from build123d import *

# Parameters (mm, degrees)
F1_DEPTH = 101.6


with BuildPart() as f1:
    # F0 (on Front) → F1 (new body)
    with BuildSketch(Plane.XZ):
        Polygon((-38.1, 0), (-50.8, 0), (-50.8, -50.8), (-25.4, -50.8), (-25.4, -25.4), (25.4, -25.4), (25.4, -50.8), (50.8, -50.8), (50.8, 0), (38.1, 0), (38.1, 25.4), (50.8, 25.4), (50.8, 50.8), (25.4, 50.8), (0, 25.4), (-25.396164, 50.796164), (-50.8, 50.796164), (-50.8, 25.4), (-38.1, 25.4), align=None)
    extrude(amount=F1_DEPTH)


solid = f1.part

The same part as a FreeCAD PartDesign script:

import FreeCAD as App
import Part
import Sketcher
Q = App.Units.Quantity

doc = App.newDocument("Part")
body = doc.addObject("PartDesign::Body", "Body")

sketch1 = body.newObject("Sketcher::SketchObject", "Sketch")
sketch1.AttachmentSupport = (doc.getObject("XZ_Plane"), [""])
sketch1.MapMode = "FlatFace"
sketch1.addGeometry([
    Part.LineSegment(App.Vector(-38, 0, 0), App.Vector(-51, 0, 0)),
    Part.LineSegment(App.Vector(-51, 0, 0), App.Vector(-51, -51, 0)),
    Part.LineSegment(App.Vector(-51, -51, 0), App.Vector(-25, -51, 0)),
    Part.LineSegment(App.Vector(-25, -51, 0), App.Vector(-25, -25, 0)),
    Part.LineSegment(App.Vector(-25, -25, 0), App.Vector(25, -25, 0)),
    Part.LineSegment(App.Vector(25, -25, 0), App.Vector(25, -51, 0)),
    Part.LineSegment(App.Vector(25, -51, 0), App.Vector(51, -51, 0)),
    Part.LineSegment(App.Vector(51, -51, 0), App.Vector(51, 0, 0)),
    Part.LineSegment(App.Vector(51, 0, 0), App.Vector(38, 0, 0)),
    Part.LineSegment(App.Vector(38, 0, 0), App.Vector(38, 25, 0)),
    Part.LineSegment(App.Vector(38, 25, 0), App.Vector(51, 25, 0)),
    Part.LineSegment(App.Vector(51, 25, 0), App.Vector(51, 51, 0)),
    Part.LineSegment(App.Vector(51, 51, 0), App.Vector(25, 51, 0)),
    Part.LineSegment(App.Vector(25, 51, 0), App.Vector(0, 25, 0)),
    Part.LineSegment(App.Vector(0, 25, 0), App.Vector(-25, 51, 0)),
    Part.LineSegment(App.Vector(-25, 51, 0), App.Vector(-51, 51, 0)),
    Part.LineSegment(App.Vector(-51, 51, 0), App.Vector(-51, 25, 0)),
    Part.LineSegment(App.Vector(-51, 25, 0), App.Vector(-38, 25, 0)),
    Part.LineSegment(App.Vector(-38, 25, 0), App.Vector(-38, 0, 0)),
], False)
sketch1.addConstraint([
    Sketcher.Constraint("Coincident", 0, 2, 1, 1),
    Sketcher.Constraint("Coincident", 1, 2, 2, 1),
    Sketcher.Constraint("Coincident", 2, 2, 3, 1),
    Sketcher.Constraint("Coincident", 3, 2, 4, 1),
    Sketcher.Constraint("Coincident", 4, 2, 5, 1),
    Sketcher.Constraint("Coincident", 5, 2, 6, 1),
    Sketcher.Constraint("Coincident", 6, 2, 7, 1),
    Sketcher.Constraint("Coincident", 7, 2, 8, 1),
    Sketcher.Constraint("Coincident", 8, 2, 9, 1),
    Sketcher.Constraint("Coincident", 9, 2, 10, 1),
    Sketcher.Constraint("Coincident", 10, 2, 11, 1),
    Sketcher.Constraint("Coincident", 11, 2, 12, 1),
    Sketcher.Constraint("Coincident", 12, 2, 13, 1),
    Sketcher.Constraint("Coincident", 13, 2, 14, 1),
    Sketcher.Constraint("Coincident", 14, 2, 15, 1),
    Sketcher.Constraint("Coincident", 15, 2, 16, 1),
    Sketcher.Constraint("Coincident", 16, 2, 17, 1),
    Sketcher.Constraint("Coincident", 17, 2, 18, 1),
    Sketcher.Constraint("Coincident", 18, 2, 0, 1),
    Sketcher.Constraint("Horizontal", 0),
    Sketcher.Constraint("Vertical", 1),
    Sketcher.Constraint("Horizontal", 2),
    Sketcher.Constraint("Vertical", 3),
    Sketcher.Constraint("Horizontal", 4),
    Sketcher.Constraint("Vertical", 5),
    Sketcher.Constraint("Horizontal", 6),
    Sketcher.Constraint("Vertical", 7),
    Sketcher.Constraint("Horizontal", 8),
    Sketcher.Constraint("Vertical", 9),
    Sketcher.Constraint("Horizontal", 10),
    Sketcher.Constraint("Vertical", 11),
    Sketcher.Constraint("Horizontal", 12),
    Sketcher.Constraint("Horizontal", 15),
    Sketcher.Constraint("Vertical", 16),
    Sketcher.Constraint("Horizontal", 17),
    Sketcher.Constraint("Vertical", 18),
    Sketcher.Constraint("Symmetric", 0, 2, 7, 2, -1, 1),
    Sketcher.Constraint("Symmetric", 1, 2, 11, 2, -1, 1),
    Sketcher.Constraint("Symmetric", 2, 2, 5, 2, -2),
    Sketcher.Constraint("Symmetric", 10, 2, 16, 2, -2),
    Sketcher.Constraint("Symmetric", 8, 2, 18, 2, -2),
    Sketcher.Constraint("PointOnObject", 13, 2, -2),
    Sketcher.Constraint("Perpendicular", 13, 14),
    Sketcher.Constraint("Horizontal", 10, 2, 13, 2),
    Sketcher.Constraint("Vertical", 5, 2, 12, 2),
    Sketcher.Constraint("Equal", 4, 1),
    Sketcher.Constraint("Equal", 12, 3),
    Sketcher.Constraint("Equal", 5, 9),
    Sketcher.Constraint("Equal", 9, 11),
    Sketcher.Constraint("DistanceX", 2, 1, 2, 2, Q("1 in")),
    Sketcher.Constraint("DistanceX", 0, 2, 0, 1, Q("0.5 in")),
    Sketcher.Constraint("Distance", 14, Q("1.414 in")),
])
pad1 = body.newObject("PartDesign::Pad", "Pad")
pad1.Profile = sketch1
pad1.Length = Q("4 in")

doc.recompute()
